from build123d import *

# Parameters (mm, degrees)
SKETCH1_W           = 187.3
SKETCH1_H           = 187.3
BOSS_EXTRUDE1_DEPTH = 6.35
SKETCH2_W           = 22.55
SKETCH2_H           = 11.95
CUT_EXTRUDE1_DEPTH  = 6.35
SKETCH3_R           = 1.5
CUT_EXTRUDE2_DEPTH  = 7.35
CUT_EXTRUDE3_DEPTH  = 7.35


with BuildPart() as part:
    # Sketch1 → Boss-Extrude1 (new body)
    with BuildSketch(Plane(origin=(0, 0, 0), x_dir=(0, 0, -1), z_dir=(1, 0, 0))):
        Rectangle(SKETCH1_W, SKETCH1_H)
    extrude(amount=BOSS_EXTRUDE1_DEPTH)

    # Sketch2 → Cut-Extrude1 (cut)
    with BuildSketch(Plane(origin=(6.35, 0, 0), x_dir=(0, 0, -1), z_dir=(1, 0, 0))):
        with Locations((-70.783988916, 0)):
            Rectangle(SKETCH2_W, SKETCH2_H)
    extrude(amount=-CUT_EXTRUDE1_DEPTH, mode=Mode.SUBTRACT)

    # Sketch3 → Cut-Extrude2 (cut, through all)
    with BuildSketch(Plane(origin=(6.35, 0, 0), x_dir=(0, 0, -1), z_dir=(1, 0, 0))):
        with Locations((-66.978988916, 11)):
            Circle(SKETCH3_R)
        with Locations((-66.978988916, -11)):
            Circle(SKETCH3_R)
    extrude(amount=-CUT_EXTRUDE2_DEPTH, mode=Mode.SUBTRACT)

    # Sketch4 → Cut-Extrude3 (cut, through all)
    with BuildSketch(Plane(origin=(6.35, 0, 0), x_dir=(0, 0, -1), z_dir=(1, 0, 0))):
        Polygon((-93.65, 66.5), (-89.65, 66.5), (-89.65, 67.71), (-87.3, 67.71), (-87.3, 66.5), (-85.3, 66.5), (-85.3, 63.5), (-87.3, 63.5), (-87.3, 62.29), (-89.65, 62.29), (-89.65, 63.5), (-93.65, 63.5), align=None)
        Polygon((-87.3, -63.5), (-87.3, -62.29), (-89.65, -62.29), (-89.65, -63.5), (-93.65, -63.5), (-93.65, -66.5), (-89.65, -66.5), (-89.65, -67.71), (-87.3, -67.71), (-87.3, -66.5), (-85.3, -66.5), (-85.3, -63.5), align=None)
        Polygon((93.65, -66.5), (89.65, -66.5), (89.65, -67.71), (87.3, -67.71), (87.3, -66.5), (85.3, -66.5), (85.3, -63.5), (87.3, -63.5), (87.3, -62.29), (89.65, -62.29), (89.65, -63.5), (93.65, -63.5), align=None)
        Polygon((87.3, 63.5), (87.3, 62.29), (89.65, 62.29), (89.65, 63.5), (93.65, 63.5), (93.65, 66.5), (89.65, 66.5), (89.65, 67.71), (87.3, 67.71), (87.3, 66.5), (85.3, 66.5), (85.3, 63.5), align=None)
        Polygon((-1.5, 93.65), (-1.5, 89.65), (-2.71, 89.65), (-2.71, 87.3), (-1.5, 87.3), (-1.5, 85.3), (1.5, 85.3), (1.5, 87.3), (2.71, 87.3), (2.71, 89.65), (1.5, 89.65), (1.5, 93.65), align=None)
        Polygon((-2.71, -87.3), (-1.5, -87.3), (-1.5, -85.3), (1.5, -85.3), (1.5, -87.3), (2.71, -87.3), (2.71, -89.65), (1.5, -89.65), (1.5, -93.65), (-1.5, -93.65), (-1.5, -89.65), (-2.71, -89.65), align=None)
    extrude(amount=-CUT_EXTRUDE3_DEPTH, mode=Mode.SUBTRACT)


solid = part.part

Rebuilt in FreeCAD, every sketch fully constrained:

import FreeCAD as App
import Part
import Sketcher

V = App.Vector
Q = App.Units.Quantity

doc = App.newDocument("Part")
params = doc.addObject("Spreadsheet::Sheet", "Params")
for row, (alias, value) in enumerate([
    ("sketch1_width", "187.3 mm"),
    ("pad1_length", "6.35 mm"),
    ("sketch2_width", "11.95 mm"),
    ("sketch2_height", "22.55 mm"),
    ("pocket1_length", "6.35 mm"),
    ("sketch3_diameter", "3 mm"),
    ("sketch4_width", "3 mm"),
    ("sketch4_width2", "4 mm"),
    ("sketch4_width3", "2 mm"),
    ("sketch4_width4", "1.21 mm"),
    ("sketch4_width5", "2.35 mm"),
], start=1):
    params.set(f"A{row}", alias)
    params.set(f"B{row}", "=" + value)
    params.setAlias(f"B{row}", alias)

body = doc.addObject("PartDesign::Body", "Body")

# Sketch on YZ plane
sketch1 = body.newObject("Sketcher::SketchObject", "Sketch")
sketch1.AttachmentSupport = (doc.getObject("YZ_Plane"), [""])
sketch1.MapMode = "FlatFace"
sketch1.addGeometry([
    Part.LineSegment(V(94, 94, 0), V(-94, 94, 0)),
    Part.LineSegment(V(-94, 94, 0), V(-94, -94, 0)),
    Part.LineSegment(V(-94, -94, 0), V(94, -94, 0)),
    Part.LineSegment(V(94, -94, 0), V(94, 94, 0)),
], False)
sketch1.addConstraint([
    Sketcher.Constraint("Coincident", 0, 2, 1, 1),
    Sketcher.Constraint("Coincident", 1, 2, 2, 1),
    Sketcher.Constraint("Coincident", 2, 2, 3, 1),
    Sketcher.Constraint("Coincident", 3, 2, 0, 1),
    Sketcher.Constraint("Horizontal", 0),
    Sketcher.Constraint("Vertical", 1),
    Sketcher.Constraint("Horizontal", 2),
    Sketcher.Constraint("Vertical", 3),
    Sketcher.Constraint("Symmetric", 0, 2, 2, 2, -1, 1),
    Sketcher.Constraint("Equal", 2, 1),
    Sketcher.Constraint("DistanceX", 0, 2, 0, 1, Q("187.3 mm")),
])
sketch1.setExpression("Constraints[10]", "Params.sketch1_width")
pad1 = body.newObject("PartDesign::Pad", "Pad")
pad1.Profile = sketch1
pad1.setExpression("Length", "Params.pad1_length")

# Sketch on YZ plane
sketch2 = body.newObject("Sketcher::SketchObject", "Sketch001")
sketch2.AttachmentSupport = (doc.getObject("YZ_Plane"), [""])
sketch2.MapMode = "FlatFace"
sketch2.AttachmentOffset = App.Placement(V(0, 0, 6.35), App.Rotation())
sketch2.addGeometry([
    Part.LineSegment(V(6, 82, 0), V(-6, 82, 0)),
    Part.LineSegment(V(-6, 82, 0), V(-6, 60, 0)),
    Part.LineSegment(V(-6, 60, 0), V(6, 60, 0)),
    Part.LineSegment(V(6, 60, 0), V(6, 82, 0)),
], False)
sketch2.addConstraint([
    Sketcher.Constraint("Coincident", 0, 2, 1, 1),
    Sketcher.Constraint("Coincident", 1, 2, 2, 1),
    Sketcher.Constraint("Coincident", 2, 2, 3, 1),
    Sketcher.Constraint("Coincident", 3, 2, 0, 1),
    Sketcher.Constraint("Horizontal", 0),
    Sketcher.Constraint("Vertical", 1),
    Sketcher.Constraint("Horizontal", 2),
    Sketcher.Constraint("Vertical", 3),
    Sketcher.Constraint("DistanceX", 0, 2, 0, 1, Q("11.95 mm")),
    Sketcher.Constraint("DistanceY", 1, 2, 1, 1, Q("22.55 mm")),
    Sketcher.Constraint("DistanceX", 0, 2, -1, 1, Q("5.975 mm")),
    Sketcher.Constraint("DistanceY", -1, 1, 0, 2, Q("82.058989 mm")),
])
sketch2.setExpression("Constraints[8]", "Params.sketch2_width")
sketch2.setExpression("Constraints[9]", "Params.sketch2_height")
pocket1 = body.newObject("PartDesign::Pocket", "Pocket")
pocket1.Profile = sketch2
pocket1.setExpression("Length", "Params.pocket1_length")

# Sketch on YZ plane
sketch3 = body.newObject("Sketcher::SketchObject", "Sketch002")
sketch3.AttachmentSupport = (doc.getObject("YZ_Plane"), [""])
sketch3.MapMode = "FlatFace"
sketch3.AttachmentOffset = App.Placement(V(0, 0, 6.35), App.Rotation())
sketch3.addGeometry([
    Part.Circle(V(11, 67, 0), V(0, 0, 1), 1.5),
    Part.Circle(V(-11, 67, 0), V(0, 0, 1), 1.5),
], False)
sketch3.addConstraint([
    Sketcher.Constraint("Equal", 0, 1),
    Sketcher.Constraint("Symmetric", 0, 3, 1, 3, -2),
    Sketcher.Constraint("Diameter", 0, Q("3 mm")),
    Sketcher.Constraint("DistanceX", -1, 1, 0, 3, Q("11 mm")),
    Sketcher.Constraint("DistanceY", -1, 1, 0, 3, Q("66.978989 mm")),
])
sketch3.setExpression("Constraints[2]", "Params.sketch3_diameter")
pocket2 = body.newObject("PartDesign::Pocket", "Pocket001")
pocket2.Profile = sketch3
pocket2.Type = "ThroughAll"

# Sketch on YZ plane
sketch4 = body.newObject("Sketcher::SketchObject", "Sketch003")
sketch4.AttachmentSupport = (doc.getObject("YZ_Plane"), [""])
sketch4.MapMode = "FlatFace"
sketch4.AttachmentOffset = App.Placement(V(0, 0, 6.35), App.Rotation())
sketch4.addGeometry([
    Part.LineSegment(V(66.5, 89.7, 0), V(66.5, 93.7, 0)),  # 0
    Part.LineSegment(V(66.5, 93.7, 0), V(63.5, 93.7, 0)),  # 1
    Part.LineSegment(V(63.5, 93.7, 0), V(63.5, 89.7, 0)),  # 2
    Part.LineSegment(V(63.5, 89.7, 0), V(62.3, 89.7, 0)),  # 3
    Part.LineSegment(V(62.3, 89.7, 0), V(62.3, 87.3, 0)),  # 4
    Part.LineSegment(V(62.3, 87.3, 0), V(63.5, 87.3, 0)),  # 5
    Part.LineSegment(V(63.5, 87.3, 0), V(63.5, 85.3, 0)),  # 6
    Part.LineSegment(V(63.5, 85.3, 0), V(66.5, 85.3, 0)),  # 7
    Part.LineSegment(V(66.5, 85.3, 0), V(66.5, 87.3, 0)),  # 8
    Part.LineSegment(V(66.5, 87.3, 0), V(67.7, 87.3, 0)),  # 9
    Part.LineSegment(V(67.7, 87.3, 0), V(67.7, 89.7, 0)),  # 10
    Part.LineSegment(V(67.7, 89.7, 0), V(66.5, 89.7, 0)),  # 11
    Part.LineSegment(V(-63.5, 87.3, 0), V(-62.3, 87.3, 0)),  # 12
    Part.LineSegment(V(-62.3, 87.3, 0), V(-62.3, 89.7, 0)),  # 13
    Part.LineSegment(V(-62.3, 89.7, 0), V(-63.5, 89.7, 0)),  # 14
    Part.LineSegment(V(-63.5, 89.7, 0), V(-63.5, 93.7, 0)),  # 15
    Part.LineSegment(V(-63.5, 93.7, 0), V(-66.5, 93.7, 0)),  # 16
    Part.LineSegment(V(-66.5, 93.7, 0), V(-66.5, 89.7, 0)),  # 17
    Part.LineSegment(V(-66.5, 89.7, 0), V(-67.7, 89.7, 0)),  # 18
    Part.LineSegment(V(-67.7, 89.7, 0), V(-67.7, 87.3, 0)),  # 19
    Part.LineSegment(V(-67.7, 87.3, 0), V(-66.5, 87.3, 0)),  # 20
    Part.LineSegment(V(-66.5, 87.3, 0), V(-66.5, 85.3, 0)),  # 21
    Part.LineSegment(V(-66.5, 85.3, 0), V(-63.5, 85.3, 0)),  # 22
    Part.LineSegment(V(-63.5, 85.3, 0), V(-63.5, 87.3, 0)),  # 23
    Part.LineSegment(V(-66.5, -89.7, 0), V(-66.5, -93.7, 0)),  # 24
    Part.LineSegment(V(-66.5, -93.7, 0), V(-63.5, -93.7, 0)),  # 25
    Part.LineSegment(V(-63.5, -93.7, 0), V(-63.5, -89.7, 0)),  # 26
    Part.LineSegment(V(-63.5, -89.7, 0), V(-62.3, -89.7, 0)),  # 27
    Part.LineSegment(V(-62.3, -89.7, 0), V(-62.3, -87.3, 0)),  # 28
    Part.LineSegment(V(-62.3, -87.3, 0), V(-63.5, -87.3, 0)),  # 29
    Part.LineSegment(V(-63.5, -87.3, 0), V(-63.5, -85.3, 0)),  # 30
    Part.LineSegment(V(-63.5, -85.3, 0), V(-66.5, -85.3, 0)),  # 31
    Part.LineSegment(V(-66.5, -85.3, 0), V(-66.5, -87.3, 0)),  # 32
    Part.LineSegment(V(-66.5, -87.3, 0), V(-67.7, -87.3, 0)),  # 33
    Part.LineSegment(V(-67.7, -87.3, 0), V(-67.7, -89.7, 0)),  # 34
    Part.LineSegment(V(-67.7, -89.7, 0), V(-66.5, -89.7, 0)),  # 35
    Part.LineSegment(V(63.5, -87.3, 0), V(62.3, -87.3, 0)),  # 36
    Part.LineSegment(V(62.3, -87.3, 0), V(62.3, -89.7, 0)),  # 37
    Part.LineSegment(V(62.3, -89.7, 0), V(63.5, -89.7, 0)),  # 38
    Part.LineSegment(V(63.5, -89.7, 0), V(63.5, -93.7, 0)),  # 39
    Part.LineSegment(V(63.5, -93.7, 0), V(66.5, -93.7, 0)),  # 40
    Part.LineSegment(V(66.5, -93.7, 0), V(66.5, -89.7, 0)),  # 41
    Part.LineSegment(V(66.5, -89.7, 0), V(67.7, -89.7, 0)),  # 42
    Part.LineSegment(V(67.7, -89.7, 0), V(67.7, -87.3, 0)),  # 43
    Part.LineSegment(V(67.7, -87.3, 0), V(66.5, -87.3, 0)),  # 44
    Part.LineSegment(V(66.5, -87.3, 0), V(66.5, -85.3, 0)),  # 45
    Part.LineSegment(V(66.5, -85.3, 0), V(63.5, -85.3, 0)),  # 46
    Part.LineSegment(V(63.5, -85.3, 0), V(63.5, -87.3, 0)),  # 47
    Part.LineSegment(V(93.7, 1.5, 0), V(89.7, 1.5, 0)),  # 48
    Part.LineSegment(V(89.7, 1.5, 0), V(89.7, 2.7, 0)),  # 49
    Part.LineSegment(V(89.7, 2.7, 0), V(87.3, 2.7, 0)),  # 50
    Part.LineSegment(V(87.3, 2.7, 0), V(87.3, 1.5, 0)),  # 51
    Part.LineSegment(V(87.3, 1.5, 0), V(85.3, 1.5, 0)),  # 52
    Part.LineSegment(V(85.3, 1.5, 0), V(85.3, -1.5, 0)),  # 53
    Part.LineSegment(V(85.3, -1.5, 0), V(87.3, -1.5, 0)),  # 54
    Part.LineSegment(V(87.3, -1.5, 0), V(87.3, -2.7, 0)),  # 55
    Part.LineSegment(V(87.3, -2.7, 0), V(89.7, -2.7, 0)),  # 56
    Part.LineSegment(V(89.7, -2.7, 0), V(89.7, -1.5, 0)),  # 57
    Part.LineSegment(V(89.7, -1.5, 0), V(93.7, -1.5, 0)),  # 58
    Part.LineSegment(V(93.7, -1.5, 0), V(93.7, 1.5, 0)),  # 59
    Part.LineSegment(V(-87.3, 1.5, 0), V(-87.3, 2.7, 0)),  # 60
    Part.LineSegment(V(-87.3, 2.7, 0), V(-89.7, 2.7, 0)),  # 61
    Part.LineSegment(V(-89.7, 2.7, 0), V(-89.7, 1.5, 0)),  # 62
    Part.LineSegment(V(-89.7, 1.5, 0), V(-93.7, 1.5, 0)),  # 63
    Part.LineSegment(V(-93.7, 1.5, 0), V(-93.7, -1.5, 0)),  # 64
    Part.LineSegment(V(-93.7, -1.5, 0), V(-89.7, -1.5, 0)),  # 65
    Part.LineSegment(V(-89.7, -1.5, 0), V(-89.7, -2.7, 0)),  # 66
    Part.LineSegment(V(-89.7, -2.7, 0), V(-87.3, -2.7, 0)),  # 67
    Part.LineSegment(V(-87.3, -2.7, 0), V(-87.3, -1.5, 0)),  # 68
    Part.LineSegment(V(-87.3, -1.5, 0), V(-85.3, -1.5, 0)),  # 69
    Part.LineSegment(V(-85.3, -1.5, 0), V(-85.3, 1.5, 0)),  # 70
    Part.LineSegment(V(-85.3, 1.5, 0), V(-87.3, 1.5, 0)),  # 71
], False)
sketch4.addConstraint([
    Sketcher.Constraint("Coincident", 0, 2, 1, 1),
    Sketcher.Constraint("Coincident", 1, 2, 2, 1),
    Sketcher.Constraint("Coincident", 2, 2, 3, 1),
    Sketcher.Constraint("Coincident", 3, 2, 4, 1),
    Sketcher.Constraint("Coincident", 4, 2, 5, 1),
    Sketcher.Constraint("Coincident", 5, 2, 6, 1),
    Sketcher.Constraint("Coincident", 6, 2, 7, 1),
    Sketcher.Constraint("Coincident", 7, 2, 8, 1),
    Sketcher.Constraint("Coincident", 8, 2, 9, 1),
    Sketcher.Constraint("Coincident", 9, 2, 10, 1),
    Sketcher.Constraint("Coincident", 10, 2, 11, 1),
    Sketcher.Constraint("Coincident", 11, 2, 0, 1),
    Sketcher.Constraint("Coincident", 12, 2, 13, 1),
    Sketcher.Constraint("Coincident", 13, 2, 14, 1),
    Sketcher.Constraint("Coincident", 14, 2, 15, 1),
    Sketcher.Constraint("Coincident", 15, 2, 16, 1),
    Sketcher.Constraint("Coincident", 16, 2, 17, 1),
    Sketcher.Constraint("Coincident", 17, 2, 18, 1),
    Sketcher.Constraint("Coincident", 18, 2, 19, 1),
    Sketcher.Constraint("Coincident", 19, 2, 20, 1),
    Sketcher.Constraint("Coincident", 20, 2, 21, 1),
    Sketcher.Constraint("Coincident", 21, 2, 22, 1),
    Sketcher.Constraint("Coincident", 22, 2, 23, 1),
    Sketcher.Constraint("Coincident", 23, 2, 12, 1),
    Sketcher.Constraint("Coincident", 24, 2, 25, 1),
    Sketcher.Constraint("Coincident", 25, 2, 26, 1),
    Sketcher.Constraint("Coincident", 26, 2, 27, 1),
    Sketcher.Constraint("Coincident", 27, 2, 28, 1),
    Sketcher.Constraint("Coincident", 28, 2, 29, 1),
    Sketcher.Constraint("Coincident", 29, 2, 30, 1),
    Sketcher.Constraint("Coincident", 30, 2, 31, 1),
    Sketcher.Constraint("Coincident", 31, 2, 32, 1),
    Sketcher.Constraint("Coincident", 32, 2, 33, 1),
    Sketcher.Constraint("Coincident", 33, 2, 34, 1),
    Sketcher.Constraint("Coincident", 34, 2, 35, 1),
    Sketcher.Constraint("Coincident", 35, 2, 24, 1),
    Sketcher.Constraint("Coincident", 36, 2, 37, 1),
    Sketcher.Constraint("Coincident", 37, 2, 38, 1),
    Sketcher.Constraint("Coincident", 38, 2, 39, 1),
    Sketcher.Constraint("Coincident", 39, 2, 40, 1),
    Sketcher.Constraint("Coincident", 40, 2, 41, 1),
    Sketcher.Constraint("Coincident", 41, 2, 42, 1),
    Sketcher.Constraint("Coincident", 42, 2, 43, 1),
    Sketcher.Constraint("Coincident", 43, 2, 44, 1),
    Sketcher.Constraint("Coincident", 44, 2, 45, 1),
    Sketcher.Constraint("Coincident", 45, 2, 46, 1),
    Sketcher.Constraint("Coincident", 46, 2, 47, 1),
    Sketcher.Constraint("Coincident", 47, 2, 36, 1),
    Sketcher.Constraint("Coincident", 48, 2, 49, 1),
    Sketcher.Constraint("Coincident", 49, 2, 50, 1),
    Sketcher.Constraint("Coincident", 50, 2, 51, 1),
    Sketcher.Constraint("Coincident", 51, 2, 52, 1),
    Sketcher.Constraint("Coincident", 52, 2, 53, 1),
    Sketcher.Constraint("Coincident", 53, 2, 54, 1),
    Sketcher.Constraint("Coincident", 54, 2, 55, 1),
    Sketcher.Constraint("Coincident", 55, 2, 56, 1),
    Sketcher.Constraint("Coincident", 56, 2, 57, 1),
    Sketcher.Constraint("Coincident", 57, 2, 58, 1),
    Sketcher.Constraint("Coincident", 58, 2, 59, 1),
    Sketcher.Constraint("Coincident", 59, 2, 48, 1),
    Sketcher.Constraint("Coincident", 60, 2, 61, 1),
    Sketcher.Constraint("Coincident", 61, 2, 62, 1),
    Sketcher.Constraint("Coincident", 62, 2, 63, 1),
    Sketcher.Constraint("Coincident", 63, 2, 64, 1),
    Sketcher.Constraint("Coincident", 64, 2, 65, 1),
    Sketcher.Constraint("Coincident", 65, 2, 66, 1),
    Sketcher.Constraint("Coincident", 66, 2, 67, 1),
    Sketcher.Constraint("Coincident", 67, 2, 68, 1),
    Sketcher.Constraint("Coincident", 68, 2, 69, 1),
    Sketcher.Constraint("Coincident", 69, 2, 70, 1),
    Sketcher.Constraint("Coincident", 70, 2, 71, 1),
    Sketcher.Constraint("Coincident", 71, 2, 60, 1),
    Sketcher.Constraint("Vertical", 0),
    Sketcher.Constraint("Horizontal", 1),
    Sketcher.Constraint("Vertical", 2),
    Sketcher.Constraint("Horizontal", 3),
    Sketcher.Constraint("Vertical", 4),
    Sketcher.Constraint("Horizontal", 5),
    Sketcher.Constraint("Vertical", 6),
    Sketcher.Constraint("Horizontal", 7),
    Sketcher.Constraint("Vertical", 8),
    Sketcher.Constraint("Horizontal", 9),
    Sketcher.Constraint("Vertical", 10),
    Sketcher.Constraint("Horizontal", 11),
    Sketcher.Constraint("Horizontal", 12),
    Sketcher.Constraint("Vertical", 13),
    Sketcher.Constraint("Horizontal", 14),
    Sketcher.Constraint("Vertical", 15),
    Sketcher.Constraint("Horizontal", 16),
    Sketcher.Constraint("Vertical", 17),
    Sketcher.Constraint("Horizontal", 18),
    Sketcher.Constraint("Vertical", 19),
    Sketcher.Constraint("Horizontal", 20),
    Sketcher.Constraint("Vertical", 21),
    Sketcher.Constraint("Horizontal", 22),
    Sketcher.Constraint("Vertical", 23),
    Sketcher.Constraint("Vertical", 24),
    Sketcher.Constraint("Horizontal", 25),
    Sketcher.Constraint("Vertical", 26),
    Sketcher.Constraint("Horizontal", 27),
    Sketcher.Constraint("Vertical", 28),
    Sketcher.Constraint("Horizontal", 29),
    Sketcher.Constraint("Vertical", 30),
    Sketcher.Constraint("Horizontal", 31),
    Sketcher.Constraint("Vertical", 32),
    Sketcher.Constraint("Horizontal", 33),
    Sketcher.Constraint("Vertical", 34),
    Sketcher.Constraint("Horizontal", 35),
    Sketcher.Constraint("Horizontal", 36),
    Sketcher.Constraint("Vertical", 37),
    Sketcher.Constraint("Horizontal", 38),
    Sketcher.Constraint("Vertical", 39),
    Sketcher.Constraint("Horizontal", 40),
    Sketcher.Constraint("Vertical", 41),
    Sketcher.Constraint("Horizontal", 42),
    Sketcher.Constraint("Vertical", 43),
    Sketcher.Constraint("Horizontal", 44),
    Sketcher.Constraint("Vertical", 45),
    Sketcher.Constraint("Horizontal", 46),
    Sketcher.Constraint("Vertical", 47),
    Sketcher.Constraint("Horizontal", 48),
    Sketcher.Constraint("Vertical", 49),
    Sketcher.Constraint("Horizontal", 50),
    Sketcher.Constraint("Vertical", 51),
    Sketcher.Constraint("Horizontal", 52),
    Sketcher.Constraint("Vertical", 53),
    Sketcher.Constraint("Horizontal", 54),
    Sketcher.Constraint("Vertical", 55),
    Sketcher.Constraint("Horizontal", 56),
    Sketcher.Constraint("Vertical", 57),
    Sketcher.Constraint("Horizontal", 58),
    Sketcher.Constraint("Vertical", 59),
    Sketcher.Constraint("Vertical", 60),
    Sketcher.Constraint("Horizontal", 61),
    Sketcher.Constraint("Vertical", 62),
    Sketcher.Constraint("Horizontal", 63),
    Sketcher.Constraint("Vertical", 64),
    Sketcher.Constraint("Horizontal", 65),
    Sketcher.Constraint("Vertical", 66),
    Sketcher.Constraint("Horizontal", 67),
    Sketcher.Constraint("Vertical", 68),
    Sketcher.Constraint("Horizontal", 69),
    Sketcher.Constraint("Vertical", 70),
    Sketcher.Constraint("Horizontal", 71),
    Sketcher.Constraint("Symmetric", 0, 2, 24, 2, -1, 1),
    Sketcher.Constraint("Symmetric", 2, 2, 26, 2, -1, 1),
    Sketcher.Constraint("Symmetric", 4, 2, 28, 2, -1, 1),
    Sketcher.Constraint("Symmetric", 6, 2, 30, 2, -1, 1),
    Sketcher.Constraint("Symmetric", 8, 2, 32, 2, -1, 1),
    Sketcher.Constraint("Symmetric", 10, 2, 34, 2, -1, 1),
    Sketcher.Constraint("Symmetric", 12, 2, 36, 2, -1, 1),
    Sketcher.Constraint("Symmetric", 14, 2, 38, 2, -1, 1),
    Sketcher.Constraint("Symmetric", 16, 2, 40, 2, -1, 1),
    Sketcher.Constraint("Symmetric", 18, 2, 42, 2, -1, 1),
    Sketcher.Constraint("Symmetric", 20, 2, 44, 2, -1, 1),
    Sketcher.Constraint("Symmetric", 22, 2, 46, 2, -1, 1),
    Sketcher.Constraint("Symmetric", 55, 2, 60, 2, -1, 1),
    Sketcher.Constraint("Symmetric", 57, 2, 62, 2, -1, 1),
    Sketcher.Constraint("Symmetric", 59, 2, 64, 2, -1, 1),
    Sketcher.Constraint("Symmetric", 49, 2, 66, 2, -1, 1),
    Sketcher.Constraint("Symmetric", 51, 2, 68, 2, -1, 1),
    Sketcher.Constraint("Symmetric", 53, 2, 70, 2, -1, 1),
    Sketcher.Constraint("Symmetric", 4, 2, 12, 2, -2),
    Sketcher.Constraint("Symmetric", 2, 2, 14, 2, -2),
    Sketcher.Constraint("Symmetric", 0, 2, 16, 2, -2),
    Sketcher.Constraint("Symmetric", 10, 2, 18, 2, -2),
    Sketcher.Constraint("Symmetric", 8, 2, 20, 2, -2),
    Sketcher.Constraint("Symmetric", 6, 2, 22, 2, -2),
    Sketcher.Constraint("Symmetric", 50, 2, 60, 2, -2),
    Sketcher.Constraint("Symmetric", 48, 2, 62, 2, -2),
    Sketcher.Constraint("Horizontal", 5, 2, 8, 2),
    Sketcher.Constraint("Horizontal", 3, 2, 10, 2),
    Sketcher.Constraint("Horizontal", 48, 2, 51, 2),
    Sketcher.Constraint("Horizontal", 54, 2, 57, 2),
    Sketcher.Constraint("Vertical", 2, 2, 5, 2),
    Sketcher.Constraint("Vertical", 0, 2, 7, 2),
    Sketcher.Constraint("Equal", 5, 9),
    Sketcher.Constraint("Equal", 65, 0),
    Sketcher.Constraint("Equal", 67, 4),
    Sketcher.Constraint("Equal", 71, 6),
    Sketcher.Constraint("Equal", 44, 49),
    Sketcher.Constraint("Equal", 46, 53),
    Sketcher.Constraint("DistanceX", 1, 2, 1, 1, Q("3 mm")),
    Sketcher.Constraint("DistanceX", 48, 2, 48, 1, Q("4 mm")),
    Sketcher.Constraint("DistanceX", 52, 2, 52, 1, Q("2 mm")),
    Sketcher.Constraint("DistanceX", 3, 2, 3, 1, Q("1.21 mm")),
    Sketcher.Constraint("DistanceX", 50, 2, 50, 1, Q("2.35 mm")),
    Sketcher.Constraint("DistanceX", -1, 1, 0, 2, Q("66.5 mm")),
    Sketcher.Constraint("DistanceY", -1, 1, 4, 2, Q("87.3 mm")),
    Sketcher.Constraint("DistanceX", -1, 1, 50, 2, Q("87.3 mm")),
])
sketch4.setExpression("Constraints[182]", "Params.sketch4_width")
sketch4.setExpression("Constraints[183]", "Params.sketch4_width2")
sketch4.setExpression("Constraints[184]", "Params.sketch4_width3")
sketch4.setExpression("Constraints[185]", "Params.sketch4_width4")
sketch4.setExpression("Constraints[186]", "Params.sketch4_width5")
pocket3 = body.newObject("PartDesign::Pocket", "Pocket002")
pocket3.Profile = sketch4
pocket3.Type = "ThroughAll"

doc.recompute()
